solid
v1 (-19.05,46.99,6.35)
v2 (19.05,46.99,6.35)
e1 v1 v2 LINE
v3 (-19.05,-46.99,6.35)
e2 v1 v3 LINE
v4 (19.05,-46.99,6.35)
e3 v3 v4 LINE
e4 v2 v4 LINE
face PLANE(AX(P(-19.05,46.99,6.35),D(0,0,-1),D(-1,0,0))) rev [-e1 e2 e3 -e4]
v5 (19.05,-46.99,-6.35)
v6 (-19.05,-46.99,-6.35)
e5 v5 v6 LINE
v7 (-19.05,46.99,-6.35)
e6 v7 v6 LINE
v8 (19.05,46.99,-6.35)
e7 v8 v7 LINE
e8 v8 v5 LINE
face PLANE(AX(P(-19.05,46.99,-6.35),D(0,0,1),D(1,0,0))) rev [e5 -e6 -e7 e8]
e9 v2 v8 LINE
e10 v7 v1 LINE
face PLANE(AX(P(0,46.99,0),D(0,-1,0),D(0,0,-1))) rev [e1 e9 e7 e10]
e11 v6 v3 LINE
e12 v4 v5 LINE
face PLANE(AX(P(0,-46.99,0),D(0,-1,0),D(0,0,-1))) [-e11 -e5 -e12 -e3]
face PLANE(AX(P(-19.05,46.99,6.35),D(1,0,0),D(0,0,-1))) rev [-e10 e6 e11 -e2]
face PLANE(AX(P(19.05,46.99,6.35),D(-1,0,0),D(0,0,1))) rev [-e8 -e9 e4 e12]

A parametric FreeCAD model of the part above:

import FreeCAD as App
import Part
import Sketcher

V = App.Vector
Q = App.Units.Quantity

doc = App.newDocument("Part")
body = doc.addObject("PartDesign::Body", "Body")

sketch1 = body.newObject("Sketcher::SketchObject", "Sketch")
sketch1.AttachmentSupport = (doc.getObject("XZ_Plane"), [""])
sketch1.MapMode = "FlatFace"
sketch1.addGeometry(Part.LineSegment(V(-19.05, -6.35, 0), V(-19.05, 6.35, 0)), False)
sketch1.addGeometry(Part.LineSegment(V(-19.05, 6.35, 0), V(19.05, 6.35, 0)), False)
sketch1.addGeometry(Part.LineSegment(V(19.05, 6.35, 0), V(19.05, -6.35, 0)), False)
sketch1.addGeometry(Part.LineSegment(V(19.05, -6.35, 0), V(-19.05, -6.35, 0)), False)
sketch1.addConstraint(Sketcher.Constraint("Coincident", 0, 2, 1, 1))
sketch1.addConstraint(Sketcher.Constraint("Coincident", 1, 2, 2, 1))
sketch1.addConstraint(Sketcher.Constraint("Coincident", 2, 2, 3, 1))
sketch1.addConstraint(Sketcher.Constraint("Coincident", 3, 2, 0, 1))
sketch1.addConstraint(Sketcher.Constraint("Vertical", 0))
sketch1.addConstraint(Sketcher.Constraint("Horizontal", 1))
sketch1.addConstraint(Sketcher.Constraint("Vertical", 2))
sketch1.addConstraint(Sketcher.Constraint("Horizontal", 3))
sketch1.addConstraint(Sketcher.Constraint("Symmetric", 0, 2, 2, 2, -1, 1))
sketch1.addConstraint(Sketcher.Constraint("DistanceX", 1, 1, 1, 2, Q("1.5 in")))
sketch1.addConstraint(Sketcher.Constraint("DistanceY", 0, 1, 0, 2, Q("0.5 in")))
pad1 = body.newObject("PartDesign::Pad", "Pad")
pad1.Profile = sketch1
pad1.Length = Q("3.7 in")
pad1.Midplane = True

doc.recompute()
